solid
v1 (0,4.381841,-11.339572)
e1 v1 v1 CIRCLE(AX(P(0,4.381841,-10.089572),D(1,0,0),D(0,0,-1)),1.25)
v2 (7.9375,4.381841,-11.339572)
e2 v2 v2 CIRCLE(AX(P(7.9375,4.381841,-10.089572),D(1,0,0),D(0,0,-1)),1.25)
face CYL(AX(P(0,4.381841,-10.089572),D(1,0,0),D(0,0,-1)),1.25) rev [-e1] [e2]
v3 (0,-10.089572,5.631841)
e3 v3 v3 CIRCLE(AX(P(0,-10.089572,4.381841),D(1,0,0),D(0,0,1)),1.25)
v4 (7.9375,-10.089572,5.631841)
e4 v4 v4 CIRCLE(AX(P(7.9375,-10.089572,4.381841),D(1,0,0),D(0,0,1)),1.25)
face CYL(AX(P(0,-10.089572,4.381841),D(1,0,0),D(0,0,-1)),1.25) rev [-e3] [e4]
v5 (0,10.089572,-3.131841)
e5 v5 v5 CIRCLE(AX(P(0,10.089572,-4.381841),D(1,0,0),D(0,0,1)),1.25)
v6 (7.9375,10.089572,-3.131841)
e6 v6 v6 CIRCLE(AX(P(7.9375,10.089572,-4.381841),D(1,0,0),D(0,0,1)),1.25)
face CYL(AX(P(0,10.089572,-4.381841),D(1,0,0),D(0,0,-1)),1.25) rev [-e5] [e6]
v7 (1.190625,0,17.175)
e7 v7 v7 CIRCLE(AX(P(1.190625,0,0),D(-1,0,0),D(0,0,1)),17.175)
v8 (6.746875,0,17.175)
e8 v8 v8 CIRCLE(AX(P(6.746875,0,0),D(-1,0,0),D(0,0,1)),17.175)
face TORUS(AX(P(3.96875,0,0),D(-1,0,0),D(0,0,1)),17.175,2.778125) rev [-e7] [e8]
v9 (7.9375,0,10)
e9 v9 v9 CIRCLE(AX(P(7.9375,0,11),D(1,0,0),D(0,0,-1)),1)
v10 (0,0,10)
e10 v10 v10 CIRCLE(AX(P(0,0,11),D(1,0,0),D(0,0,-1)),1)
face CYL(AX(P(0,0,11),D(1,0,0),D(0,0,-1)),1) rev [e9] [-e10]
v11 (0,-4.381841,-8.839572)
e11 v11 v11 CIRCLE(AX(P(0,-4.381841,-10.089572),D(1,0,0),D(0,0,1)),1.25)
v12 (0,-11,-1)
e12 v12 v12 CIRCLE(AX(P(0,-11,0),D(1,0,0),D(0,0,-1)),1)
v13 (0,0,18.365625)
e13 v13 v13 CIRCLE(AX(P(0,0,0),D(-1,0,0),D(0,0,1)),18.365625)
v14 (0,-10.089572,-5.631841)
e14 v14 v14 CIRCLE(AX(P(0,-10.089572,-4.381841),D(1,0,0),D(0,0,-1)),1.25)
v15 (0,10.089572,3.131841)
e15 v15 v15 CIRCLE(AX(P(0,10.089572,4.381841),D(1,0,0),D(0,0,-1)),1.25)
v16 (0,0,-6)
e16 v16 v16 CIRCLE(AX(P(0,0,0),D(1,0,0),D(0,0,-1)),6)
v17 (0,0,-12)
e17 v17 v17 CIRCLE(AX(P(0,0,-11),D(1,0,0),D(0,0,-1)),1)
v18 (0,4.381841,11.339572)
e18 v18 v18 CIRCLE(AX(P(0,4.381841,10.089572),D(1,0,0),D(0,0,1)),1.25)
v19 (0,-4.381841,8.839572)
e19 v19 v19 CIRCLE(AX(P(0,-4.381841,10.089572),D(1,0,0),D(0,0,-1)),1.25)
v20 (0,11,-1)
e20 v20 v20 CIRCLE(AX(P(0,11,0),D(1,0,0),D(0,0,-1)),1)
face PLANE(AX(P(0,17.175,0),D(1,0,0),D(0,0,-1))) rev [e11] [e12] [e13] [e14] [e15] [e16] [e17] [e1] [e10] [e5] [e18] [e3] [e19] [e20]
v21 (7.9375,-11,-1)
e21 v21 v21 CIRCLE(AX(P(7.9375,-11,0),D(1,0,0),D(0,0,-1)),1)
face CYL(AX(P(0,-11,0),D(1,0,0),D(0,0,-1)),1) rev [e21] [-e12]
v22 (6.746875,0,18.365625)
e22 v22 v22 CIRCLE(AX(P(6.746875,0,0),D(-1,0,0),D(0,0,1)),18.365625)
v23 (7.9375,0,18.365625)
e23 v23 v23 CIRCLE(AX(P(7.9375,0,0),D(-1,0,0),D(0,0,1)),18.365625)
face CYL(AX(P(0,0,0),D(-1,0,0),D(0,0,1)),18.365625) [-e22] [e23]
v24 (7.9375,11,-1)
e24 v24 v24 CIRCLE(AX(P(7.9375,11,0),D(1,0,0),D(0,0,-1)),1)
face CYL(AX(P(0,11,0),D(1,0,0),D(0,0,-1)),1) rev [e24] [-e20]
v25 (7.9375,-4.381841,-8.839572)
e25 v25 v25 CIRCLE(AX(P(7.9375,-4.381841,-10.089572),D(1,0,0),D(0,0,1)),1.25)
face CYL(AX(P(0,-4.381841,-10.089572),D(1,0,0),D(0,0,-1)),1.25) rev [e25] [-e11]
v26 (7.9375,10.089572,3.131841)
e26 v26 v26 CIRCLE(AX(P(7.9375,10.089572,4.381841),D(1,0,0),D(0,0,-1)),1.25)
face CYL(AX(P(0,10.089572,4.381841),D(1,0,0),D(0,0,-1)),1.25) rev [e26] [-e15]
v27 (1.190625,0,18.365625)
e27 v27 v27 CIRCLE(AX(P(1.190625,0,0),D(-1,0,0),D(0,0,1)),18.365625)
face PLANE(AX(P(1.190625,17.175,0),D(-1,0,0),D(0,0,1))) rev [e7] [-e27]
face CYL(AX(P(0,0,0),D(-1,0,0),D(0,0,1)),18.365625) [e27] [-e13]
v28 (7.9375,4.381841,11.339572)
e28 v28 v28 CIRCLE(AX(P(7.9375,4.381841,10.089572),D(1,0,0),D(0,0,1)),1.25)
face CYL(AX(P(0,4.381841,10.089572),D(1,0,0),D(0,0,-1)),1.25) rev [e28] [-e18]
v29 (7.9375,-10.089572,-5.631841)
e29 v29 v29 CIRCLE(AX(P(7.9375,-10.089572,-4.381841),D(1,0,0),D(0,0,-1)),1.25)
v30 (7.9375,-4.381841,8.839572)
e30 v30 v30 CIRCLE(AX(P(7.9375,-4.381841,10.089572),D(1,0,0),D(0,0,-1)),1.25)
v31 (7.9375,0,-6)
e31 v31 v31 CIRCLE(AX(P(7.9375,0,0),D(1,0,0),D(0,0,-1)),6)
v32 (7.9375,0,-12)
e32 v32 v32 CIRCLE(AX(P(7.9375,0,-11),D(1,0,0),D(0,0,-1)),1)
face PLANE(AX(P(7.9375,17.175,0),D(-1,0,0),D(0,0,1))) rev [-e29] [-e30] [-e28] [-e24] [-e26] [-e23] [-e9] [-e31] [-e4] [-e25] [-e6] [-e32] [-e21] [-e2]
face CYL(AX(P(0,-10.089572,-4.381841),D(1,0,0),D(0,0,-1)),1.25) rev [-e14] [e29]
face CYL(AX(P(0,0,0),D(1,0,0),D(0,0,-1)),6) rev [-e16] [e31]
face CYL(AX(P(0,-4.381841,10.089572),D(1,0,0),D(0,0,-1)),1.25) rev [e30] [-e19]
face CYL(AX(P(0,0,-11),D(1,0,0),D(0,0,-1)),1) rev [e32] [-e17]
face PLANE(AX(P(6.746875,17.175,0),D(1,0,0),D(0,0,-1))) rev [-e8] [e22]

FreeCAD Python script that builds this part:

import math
import FreeCAD as App
import Part
import Sketcher

V = App.Vector

doc = App.newDocument("Part")
body = doc.addObject("PartDesign::Body", "Body")

sketch1 = body.newObject("Sketcher::SketchObject", "Sketch")
sketch1.AttachmentSupport = (doc.getObject("XY_Plane"), [""])
sketch1.MapMode = "FlatFace"
sketch1.addGeometry([
    Part.LineSegment(V(0, 0, 0), V(7.9, 0, 0)),
    Part.LineSegment(V(7.9, 0, 0), V(7.9, 18.4, 0)),
    Part.LineSegment(V(7.9, 18.4, 0), V(6.7, 18.4, 0)),
    Part.LineSegment(V(6.7, 18.4, 0), V(6.7, 17.2, 0)),
    Part.ArcOfCircle(Part.Circle(V(4, 17.2, 0), V(0, 0, 1), 2.8), math.radians(180), math.radians(360)),
    Part.LineSegment(V(1.2, 17.2, 0), V(1.2, 18.4, 0)),
    Part.LineSegment(V(1.2, 18.4, 0), V(0, 18.4, 0)),
    Part.LineSegment(V(0, 18.4, 0), V(0, 0, 0)),
], False)
sketch1.addConstraint([
    Sketcher.Constraint("Coincident", 0, 2, 1, 1),
    Sketcher.Constraint("Coincident", 1, 2, 2, 1),
    Sketcher.Constraint("Coincident", 2, 2, 3, 1),
    Sketcher.Constraint("Tangent", 3, 2, 4, 2),
    Sketcher.Constraint("Tangent", 4, 1, 5, 1),
    Sketcher.Constraint("Coincident", 5, 2, 6, 1),
    Sketcher.Constraint("Coincident", 6, 2, 7, 1),
    Sketcher.Constraint("Coincident", 7, 2, 0, 1),
    Sketcher.Constraint("Horizontal", 0),
    Sketcher.Constraint("Vertical", 1),
    Sketcher.Constraint("Horizontal", 2),
    Sketcher.Constraint("Vertical", 3),
    Sketcher.Constraint("Vertical", 5),
    Sketcher.Constraint("Horizontal", 6),
    Sketcher.Constraint("Vertical", 7),
    Sketcher.Constraint("Coincident", 7, 2, -1, 1),
    Sketcher.Constraint("Horizontal", 2, 2, 5, 2),
    Sketcher.Constraint("Equal", 2, 6),
    Sketcher.Constraint("Equal", 6, 3),
    Sketcher.Constraint("DistanceX", 0, 1, 0, 2, 7.9375),
    Sketcher.Constraint("DistanceY", -1, 1, 4, 3, 17.175),
    Sketcher.Constraint("Radius", 4, 2.778125),
])
revolution = body.newObject("PartDesign::Revolution", "Revolution")
revolution.Profile = sketch1
revolution.ReferenceAxis = (sketch1, ["H_Axis"])
revolution.Angle = 360

sketch2 = body.newObject("Sketcher::SketchObject", "Sketch001")
sketch2.AttachmentSupport = (doc.getObject("YZ_Plane"), [""])
sketch2.MapMode = "FlatFace"
sketch2.AttachmentOffset = App.Placement(V(0, 0, 7.9375), App.Rotation())
sketch2.addGeometry(Part.Circle(V(0, 0, 0), V(0, 0, 1), 6), False)
sketch2.addConstraint([
    Sketcher.Constraint("Coincident", 0, 3, -1, 1),
    Sketcher.Constraint("Diameter", 0, 12.0),
])
pocket1 = body.newObject("PartDesign::Pocket", "Pocket")
pocket1.Profile = sketch2
pocket1.Type = "ThroughAll"

sketch3 = body.newObject("Sketcher::SketchObject", "Sketch002")
sketch3.AttachmentSupport = (doc.getObject("YZ_Plane"), [""])
sketch3.MapMode = "FlatFace"
sketch3.AttachmentOffset = App.Placement(V(0, 0, 7.9375), App.Rotation())
sketch3.addGeometry([
    Part.Circle(V(11, 0, 0), V(0, 0, 1), 1),
    Part.Circle(V(10.1, 4.4, 0), V(0, 0, 1), 1.2),
    Part.Circle(V(10.1, -4.4, 0), V(0, 0, 1), 1.2),
    Part.Circle(V(-4.4, -10.1, 0), V(0, 0, 1), 1.2),
    Part.Circle(V(0, -11, 0), V(0, 0, 1), 1),
    Part.Circle(V(4.4, -10.1, 0), V(0, 0, 1), 1.2),
    Part.Circle(V(-10.1, 4.4, 0), V(0, 0, 1), 1.2),
    Part.Circle(V(-11, 0, 0), V(0, 0, 1), 1),
    Part.Circle(V(-10.1, -4.4, 0), V(0, 0, 1), 1.2),
    Part.Circle(V(4.4, 10.1, 0), V(0, 0, 1), 1.2),
    Part.Circle(V(0, 11, 0), V(0, 0, 1), 1),
    Part.Circle(V(-4.4, 10.1, 0), V(0, 0, 1), 1.2),
], False)
sketch3.addConstraint([
    Sketcher.Constraint("Equal", 1, 2),
    Sketcher.Constraint("Equal", 2, 3),
    Sketcher.Constraint("Equal", 0, 4),
    Sketcher.Constraint("Equal", 3, 5),
    Sketcher.Constraint("Equal", 5, 6),
    Sketcher.Constraint("Equal", 4, 7),
    Sketcher.Constraint("Equal", 6, 8),
    Sketcher.Constraint("Equal", 8, 9),
    Sketcher.Constraint("Equal", 7, 10),
    Sketcher.Constraint("Equal", 9, 11),
    Sketcher.Constraint("Symmetric", 2, 3, 6, 3, -1, 1),
    Sketcher.Constraint("Symmetric", 0, 3, 7, 3, -1, 1),
    Sketcher.Constraint("Symmetric", 1, 3, 8, 3, -1, 1),
    Sketcher.Constraint("Symmetric", 3, 3, 9, 3, -1, 1),
    Sketcher.Constraint("Symmetric", 4, 3, 10, 3, -1, 1),
    Sketcher.Constraint("Symmetric", 5, 3, 11, 3, -1, 1),
    Sketcher.Constraint("Symmetric", 3, 3, 5, 3, -2),
    Sketcher.Constraint("Symmetric", 1, 3, 6, 3, -2),
    Sketcher.Constraint("PointOnObject", 0, 3, -1),
    Sketcher.Constraint("PointOnObject", 4, 3, -2),
    Sketcher.Constraint("Diameter", 0, 2.0),
    Sketcher.Constraint("Diameter", 1, 2.5),
    Sketcher.Constraint("DistanceX", -1, 1, 0, 3, 11.0),
    Sketcher.Constraint("DistanceY", 4, 3, -1, 1, 11.0),
    Sketcher.Constraint("DistanceY", -1, 1, 1, 3, 4.381841),
    Sketcher.Constraint("DistanceX", 3, 3, -1, 1, 4.381841),
    Sketcher.Constraint("DistanceY", 3, 3, 2, 3, 5.707731),
    Sketcher.Constraint("DistanceX", 5, 3, 2, 3, 5.707731),
])
pocket2 = body.newObject("PartDesign::Pocket", "Pocket001")
pocket2.Profile = sketch3
pocket2.Type = "ThroughAll"

doc.recompute()
